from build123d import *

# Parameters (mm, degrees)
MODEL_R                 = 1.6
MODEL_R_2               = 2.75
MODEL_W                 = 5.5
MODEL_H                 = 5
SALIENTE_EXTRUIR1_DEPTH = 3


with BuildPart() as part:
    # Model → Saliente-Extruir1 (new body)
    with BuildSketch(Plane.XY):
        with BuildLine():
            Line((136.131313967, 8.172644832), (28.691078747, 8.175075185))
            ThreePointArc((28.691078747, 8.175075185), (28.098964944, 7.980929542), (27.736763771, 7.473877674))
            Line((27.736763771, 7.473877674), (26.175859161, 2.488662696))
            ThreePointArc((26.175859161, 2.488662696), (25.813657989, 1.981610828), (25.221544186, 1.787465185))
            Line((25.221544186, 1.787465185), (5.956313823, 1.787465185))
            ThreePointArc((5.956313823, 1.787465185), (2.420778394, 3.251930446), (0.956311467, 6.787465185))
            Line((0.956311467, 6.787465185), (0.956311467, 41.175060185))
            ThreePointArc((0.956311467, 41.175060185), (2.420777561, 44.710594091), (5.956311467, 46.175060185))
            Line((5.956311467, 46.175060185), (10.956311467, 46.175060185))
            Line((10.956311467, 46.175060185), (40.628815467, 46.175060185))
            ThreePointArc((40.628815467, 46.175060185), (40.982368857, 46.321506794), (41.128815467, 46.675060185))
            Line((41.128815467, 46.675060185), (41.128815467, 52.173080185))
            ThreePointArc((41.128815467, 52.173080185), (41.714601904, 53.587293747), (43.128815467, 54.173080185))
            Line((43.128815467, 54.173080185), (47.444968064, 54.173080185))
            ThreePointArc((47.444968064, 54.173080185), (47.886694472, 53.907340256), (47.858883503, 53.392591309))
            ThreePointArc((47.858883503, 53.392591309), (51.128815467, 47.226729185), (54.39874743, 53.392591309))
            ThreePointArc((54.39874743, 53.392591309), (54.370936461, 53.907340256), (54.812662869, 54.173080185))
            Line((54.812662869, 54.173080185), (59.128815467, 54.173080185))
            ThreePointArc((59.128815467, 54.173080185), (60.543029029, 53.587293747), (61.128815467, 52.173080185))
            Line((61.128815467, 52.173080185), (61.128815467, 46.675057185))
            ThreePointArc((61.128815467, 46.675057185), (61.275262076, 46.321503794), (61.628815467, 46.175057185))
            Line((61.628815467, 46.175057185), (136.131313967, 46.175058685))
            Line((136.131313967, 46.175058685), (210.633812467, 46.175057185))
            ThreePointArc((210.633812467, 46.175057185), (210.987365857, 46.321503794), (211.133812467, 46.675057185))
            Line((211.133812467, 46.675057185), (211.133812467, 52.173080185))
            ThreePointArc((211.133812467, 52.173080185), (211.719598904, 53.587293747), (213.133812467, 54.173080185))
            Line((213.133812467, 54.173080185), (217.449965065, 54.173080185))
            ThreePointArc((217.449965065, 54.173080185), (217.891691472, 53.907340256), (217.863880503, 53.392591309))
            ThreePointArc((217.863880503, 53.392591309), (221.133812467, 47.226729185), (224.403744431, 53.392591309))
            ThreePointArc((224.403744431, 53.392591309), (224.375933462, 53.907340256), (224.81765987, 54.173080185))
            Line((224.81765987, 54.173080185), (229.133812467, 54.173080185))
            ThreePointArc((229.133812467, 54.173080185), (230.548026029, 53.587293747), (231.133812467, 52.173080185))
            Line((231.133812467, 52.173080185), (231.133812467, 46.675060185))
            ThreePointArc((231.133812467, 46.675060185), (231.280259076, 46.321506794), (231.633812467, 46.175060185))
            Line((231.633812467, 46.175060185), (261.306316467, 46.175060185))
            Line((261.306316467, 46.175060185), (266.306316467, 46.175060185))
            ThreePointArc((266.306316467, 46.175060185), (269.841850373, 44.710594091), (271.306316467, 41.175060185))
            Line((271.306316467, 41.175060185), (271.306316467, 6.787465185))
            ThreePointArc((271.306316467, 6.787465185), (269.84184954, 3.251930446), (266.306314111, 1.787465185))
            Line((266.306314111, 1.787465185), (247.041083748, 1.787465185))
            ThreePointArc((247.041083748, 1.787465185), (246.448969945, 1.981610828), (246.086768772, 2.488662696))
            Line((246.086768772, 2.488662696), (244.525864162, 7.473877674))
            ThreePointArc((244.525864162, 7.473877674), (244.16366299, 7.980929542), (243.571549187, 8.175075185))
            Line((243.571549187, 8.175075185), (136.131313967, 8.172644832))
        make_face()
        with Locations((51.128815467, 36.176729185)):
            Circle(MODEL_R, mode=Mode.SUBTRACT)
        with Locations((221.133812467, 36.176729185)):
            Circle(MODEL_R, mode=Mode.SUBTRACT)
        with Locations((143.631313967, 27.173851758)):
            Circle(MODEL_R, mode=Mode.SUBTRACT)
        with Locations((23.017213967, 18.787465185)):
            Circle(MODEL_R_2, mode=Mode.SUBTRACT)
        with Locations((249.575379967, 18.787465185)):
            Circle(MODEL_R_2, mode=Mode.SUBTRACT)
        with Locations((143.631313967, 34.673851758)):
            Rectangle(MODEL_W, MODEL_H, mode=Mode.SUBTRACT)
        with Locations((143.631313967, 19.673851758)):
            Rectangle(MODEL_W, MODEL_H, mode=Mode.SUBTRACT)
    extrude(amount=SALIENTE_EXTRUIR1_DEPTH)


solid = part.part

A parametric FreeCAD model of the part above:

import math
import FreeCAD as App
import Part
import Sketcher
from FreeCAD import Vector
Q = App.Units.Quantity

doc = App.newDocument("Part")
body = doc.addObject("PartDesign::Body", "Body")

# Sketch on XY plane
sketch1 = body.newObject("Sketcher::SketchObject", "Sketch")
sketch1.AttachmentSupport = (doc.getObject("XY_Plane"), [""])
sketch1.MapMode = "FlatFace"
sketch1.addGeometry(Part.LineSegment(Vector(28.691079, 8.175075, 0), Vector(136.131314, 8.172645, 0)), False)
sketch1.addGeometry(Part.LineSegment(Vector(136.131314, 8.172645, 0), Vector(243.571549, 8.175075, 0)), False)
sketch1.addGeometry(Part.ArcOfCircle(Part.Circle(Vector(243.571549, 7.175075, 0), Vector(0, 0, 1), 1), math.radians(17.385692), math.radians(90)), False)
sketch1.addGeometry(Part.LineSegment(Vector(244.525864, 7.473878, 0), Vector(246.086769, 2.488663, 0)), False)
sketch1.addGeometry(Part.ArcOfCircle(Part.Circle(Vector(247.041084, 2.787465, 0), Vector(0, 0, 1), 1), math.radians(-162.614308), math.radians(-90)), False)
sketch1.addGeometry(Part.LineSegment(Vector(247.041084, 1.787465, 0), Vector(266.306314, 1.787465, 0)), False)
sketch1.addGeometry(Part.ArcOfCircle(Part.Circle(Vector(266.306316, 6.787465, 0), Vector(0, 0, 1), 5), math.radians(-90.000027), math.radians(0)), False)
sketch1.addGeometry(Part.LineSegment(Vector(271.306316, 6.787465, 0), Vector(271.306316, 41.17506, 0)), False)
sketch1.addGeometry(Part.ArcOfCircle(Part.Circle(Vector(266.306316, 41.17506, 0), Vector(0, 0, 1), 5), math.radians(0), math.radians(90)), False)
sketch1.addGeometry(Part.LineSegment(Vector(266.306316, 46.17506, 0), Vector(231.633812, 46.17506, 0)), False)
sketch1.addGeometry(Part.ArcOfCircle(Part.Circle(Vector(231.633812, 46.67506, 0), Vector(0, 0, 1), 0.5), math.radians(180), math.radians(270)), False)
sketch1.addGeometry(Part.LineSegment(Vector(231.133812, 46.67506, 0), Vector(231.133812, 52.17308, 0)), False)
sketch1.addGeometry(Part.ArcOfCircle(Part.Circle(Vector(229.133812, 52.17308, 0), Vector(0, 0, 1), 2), math.radians(0), math.radians(90)), False)
sketch1.addGeometry(Part.LineSegment(Vector(229.133812, 54.17308, 0), Vector(224.81766, 54.17308, 0)), False)
sketch1.addGeometry(Part.ArcOfCircle(Part.Circle(Vector(224.81766, 53.67308, 0), Vector(0, 0, 1), 0.5), math.radians(90), math.radians(214.123443)), False)
sketch1.addGeometry(Part.ArcOfCircle(Part.Circle(Vector(221.133812, 51.176729, 0), Vector(0, 0, 1), 3.95), math.radians(145.876557), math.radians(394.123443)), False)
sketch1.addGeometry(Part.ArcOfCircle(Part.Circle(Vector(217.449965, 53.67308, 0), Vector(0, 0, 1), 0.5), math.radians(-34.123443), math.radians(90)), False)
sketch1.addGeometry(Part.LineSegment(Vector(217.449965, 54.17308, 0), Vector(213.133812, 54.17308, 0)), False)
sketch1.addGeometry(Part.ArcOfCircle(Part.Circle(Vector(213.133812, 52.17308, 0), Vector(0, 0, 1), 2), math.radians(90), math.radians(180)), False)
sketch1.addGeometry(Part.LineSegment(Vector(211.133812, 52.17308, 0), Vector(211.133812, 46.675057, 0)), False)
sketch1.addGeometry(Part.ArcOfCircle(Part.Circle(Vector(210.633812, 46.675057, 0), Vector(0, 0, 1), 0.5), math.radians(-90), math.radians(0)), False)
sketch1.addGeometry(Part.LineSegment(Vector(210.633812, 46.175057, 0), Vector(136.131314, 46.175059, 0)), False)
sketch1.addGeometry(Part.LineSegment(Vector(136.131314, 46.175059, 0), Vector(61.628815, 46.175057, 0)), False)
sketch1.addGeometry(Part.ArcOfCircle(Part.Circle(Vector(61.628815, 46.675057, 0), Vector(0, 0, 1), 0.5), math.radians(180), math.radians(270)), False)
sketch1.addGeometry(Part.LineSegment(Vector(61.128815, 46.675057, 0), Vector(61.128815, 52.17308, 0)), False)
sketch1.addGeometry(Part.ArcOfCircle(Part.Circle(Vector(59.128815, 52.17308, 0), Vector(0, 0, 1), 2), math.radians(0), math.radians(90)), False)
sketch1.addGeometry(Part.LineSegment(Vector(59.128815, 54.17308, 0), Vector(54.812663, 54.17308, 0)), False)
sketch1.addGeometry(Part.ArcOfCircle(Part.Circle(Vector(54.812663, 53.67308, 0), Vector(0, 0, 1), 0.5), math.radians(90), math.radians(214.123443)), False)
sketch1.addGeometry(Part.ArcOfCircle(Part.Circle(Vector(51.128815, 51.176729, 0), Vector(0, 0, 1), 3.95), math.radians(145.876557), math.radians(394.123443)), False)
sketch1.addGeometry(Part.ArcOfCircle(Part.Circle(Vector(47.444968, 53.67308, 0), Vector(0, 0, 1), 0.5), math.radians(-34.123443), math.radians(90)), False)
sketch1.addGeometry(Part.LineSegment(Vector(47.444968, 54.17308, 0), Vector(43.128815, 54.17308, 0)), False)
sketch1.addGeometry(Part.ArcOfCircle(Part.Circle(Vector(43.128815, 52.17308, 0), Vector(0, 0, 1), 2), math.radians(90), math.radians(180)), False)
sketch1.addGeometry(Part.LineSegment(Vector(41.128815, 52.17308, 0), Vector(41.128815, 46.67506, 0)), False)
sketch1.addGeometry(Part.ArcOfCircle(Part.Circle(Vector(40.628815, 46.67506, 0), Vector(0, 0, 1), 0.5), math.radians(-90), math.radians(0)), False)
sketch1.addGeometry(Part.LineSegment(Vector(40.628815, 46.17506, 0), Vector(5.956311, 46.17506, 0)), False)
sketch1.addGeometry(Part.ArcOfCircle(Part.Circle(Vector(5.956311, 41.17506, 0), Vector(0, 0, 1), 5), math.radians(90), math.radians(180)), False)
sketch1.addGeometry(Part.LineSegment(Vector(0.956311, 41.17506, 0), Vector(0.956311, 6.787465, 0)), False)
sketch1.addGeometry(Part.ArcOfCircle(Part.Circle(Vector(5.956311, 6.787465, 0), Vector(0, 0, 1), 5), math.radians(180), math.radians(270.000027)), False)
sketch1.addGeometry(Part.LineSegment(Vector(5.956314, 1.787465, 0), Vector(25.221544, 1.787465, 0)), False)
sketch1.addGeometry(Part.ArcOfCircle(Part.Circle(Vector(25.221544, 2.787465, 0), Vector(0, 0, 1), 1), math.radians(-90), math.radians(-17.385692)), False)
sketch1.addGeometry(Part.LineSegment(Vector(26.175859, 2.488663, 0), Vector(27.736764, 7.473878, 0)), False)
sketch1.addGeometry(Part.ArcOfCircle(Part.Circle(Vector(28.691079, 7.175075, 0), Vector(0, 0, 1), 1), math.radians(90), math.radians(162.614308)), False)
sketch1.addGeometry(Part.Circle(Vector(249.57538, 18.787465, 0), Vector(0, 0, 1), 2.75), False)
sketch1.addGeometry(Part.LineSegment(Vector(140.881314, 17.173852, 0), Vector(140.881314, 22.173852, 0)), False)
sketch1.addGeometry(Part.LineSegment(Vector(140.881314, 22.173852, 0), Vector(146.381314, 22.173852, 0)), False)
sketch1.addGeometry(Part.LineSegment(Vector(146.381314, 22.173852, 0), Vector(146.381314, 17.173852, 0)), False)
sketch1.addGeometry(Part.LineSegment(Vector(146.381314, 17.173852, 0), Vector(140.881314, 17.173852, 0)), False)
sketch1.addGeometry(Part.Circle(Vector(23.017214, 18.787465, 0), Vector(0, 0, 1), 2.75), False)
sketch1.addGeometry(Part.Circle(Vector(143.631314, 27.173852, 0), Vector(0, 0, 1), 1.6), False)
sketch1.addGeometry(Part.Circle(Vector(221.133812, 36.176729, 0), Vector(0, 0, 1), 1.6), False)
sketch1.addGeometry(Part.LineSegment(Vector(140.881314, 32.173852, 0), Vector(140.881314, 37.173852, 0)), False)
sketch1.addGeometry(Part.LineSegment(Vector(140.881314, 37.173852, 0), Vector(146.381314, 37.173852, 0)), False)
sketch1.addGeometry(Part.LineSegment(Vector(146.381314, 37.173852, 0), Vector(146.381314, 32.173852, 0)), False)
sketch1.addGeometry(Part.LineSegment(Vector(146.381314, 32.173852, 0), Vector(140.881314, 32.173852, 0)), False)
sketch1.addGeometry(Part.Circle(Vector(51.128815, 36.176729, 0), Vector(0, 0, 1), 1.6), False)
sketch1.addConstraint(Sketcher.Constraint("Coincident", 0, 2, 1, 1))
sketch1.addConstraint(Sketcher.Constraint("Coincident", 1, 2, 2, 2))
sketch1.addConstraint(Sketcher.Constraint("Coincident", 2, 1, 3, 1))
sketch1.addConstraint(Sketcher.Constraint("Coincident", 3, 2, 4, 1))
sketch1.addConstraint(Sketcher.Constraint("Coincident", 4, 2, 5, 1))
sketch1.addConstraint(Sketcher.Constraint("Coincident", 5, 2, 6, 1))
sketch1.addConstraint(Sketcher.Constraint("Coincident", 6, 2, 7, 1))
sketch1.addConstraint(Sketcher.Constraint("Coincident", 7, 2, 8, 1))
sketch1.addConstraint(Sketcher.Constraint("Coincident", 8, 2, 9, 1))
sketch1.addConstraint(Sketcher.Constraint("Coincident", 9, 2, 10, 2))
sketch1.addConstraint(Sketcher.Constraint("Coincident", 10, 1, 11, 1))
sketch1.addConstraint(Sketcher.Constraint("Coincident", 11, 2, 12, 1))
sketch1.addConstraint(Sketcher.Constraint("Coincident", 12, 2, 13, 1))
sketch1.addConstraint(Sketcher.Constraint("Coincident", 13, 2, 14, 1))
sketch1.addConstraint(Sketcher.Constraint("Coincident", 14, 2, 15, 2))
sketch1.addConstraint(Sketcher.Constraint("Coincident", 15, 1, 16, 1))
sketch1.addConstraint(Sketcher.Constraint("Coincident", 16, 2, 17, 1))
sketch1.addConstraint(Sketcher.Constraint("Coincident", 17, 2, 18, 1))
sketch1.addConstraint(Sketcher.Constraint("Coincident", 18, 2, 19, 1))
sketch1.addConstraint(Sketcher.Constraint("Coincident", 19, 2, 20, 2))
sketch1.addConstraint(Sketcher.Constraint("Coincident", 20, 1, 21, 1))
sketch1.addConstraint(Sketcher.Constraint("Coincident", 21, 2, 22, 1))
sketch1.addConstraint(Sketcher.Constraint("Coincident", 22, 2, 23, 2))
sketch1.addConstraint(Sketcher.Constraint("Coincident", 23, 1, 24, 1))
sketch1.addConstraint(Sketcher.Constraint("Coincident", 24, 2, 25, 1))
sketch1.addConstraint(Sketcher.Constraint("Coincident", 25, 2, 26, 1))
sketch1.addConstraint(Sketcher.Constraint("Coincident", 26, 2, 27, 1))
sketch1.addConstraint(Sketcher.Constraint("Coincident", 27, 2, 28, 2))
sketch1.addConstraint(Sketcher.Constraint("Coincident", 28, 1, 29, 1))
sketch1.addConstraint(Sketcher.Constraint("Coincident", 29, 2, 30, 1))
sketch1.addConstraint(Sketcher.Constraint("Coincident", 30, 2, 31, 1))
sketch1.addConstraint(Sketcher.Constraint("Coincident", 31, 2, 32, 1))
sketch1.addConstraint(Sketcher.Constraint("Coincident", 32, 2, 33, 2))
sketch1.addConstraint(Sketcher.Constraint("Coincident", 33, 1, 34, 1))
sketch1.addConstraint(Sketcher.Constraint("Coincident", 34, 2, 35, 1))
sketch1.addConstraint(Sketcher.Constraint("Coincident", 35, 2, 36, 1))
sketch1.addConstraint(Sketcher.Constraint("Coincident", 36, 2, 37, 1))
sketch1.addConstraint(Sketcher.Constraint("Coincident", 37, 2, 38, 1))
sketch1.addConstraint(Sketcher.Constraint("Coincident", 38, 2, 39, 1))
sketch1.addConstraint(Sketcher.Constraint("Coincident", 39, 2, 40, 1))
sketch1.addConstraint(Sketcher.Constraint("Coincident", 40, 2, 41, 2))
sketch1.addConstraint(Sketcher.Constraint("Coincident", 41, 1, 0, 1))
sketch1.addConstraint(Sketcher.Constraint("Coincident", 43, 2, 44, 1))
sketch1.addConstraint(Sketcher.Constraint("Coincident", 44, 2, 45, 1))
sketch1.addConstraint(Sketcher.Constraint("Coincident", 45, 2, 46, 1))
sketch1.addConstraint(Sketcher.Constraint("Coincident", 46, 2, 43, 1))
sketch1.addConstraint(Sketcher.Constraint("Coincident", 50, 2, 51, 1))
sketch1.addConstraint(Sketcher.Constraint("Coincident", 51, 2, 52, 1))
sketch1.addConstraint(Sketcher.Constraint("Coincident", 52, 2, 53, 1))
sketch1.addConstraint(Sketcher.Constraint("Coincident", 53, 2, 50, 1))
sketch1.addConstraint(Sketcher.Constraint("Horizontal", 5))
sketch1.addConstraint(Sketcher.Constraint("Vertical", 7))
sketch1.addConstraint(Sketcher.Constraint("Horizontal", 9))
sketch1.addConstraint(Sketcher.Constraint("Vertical", 11))
sketch1.addConstraint(Sketcher.Constraint("Horizontal", 13))
sketch1.addConstraint(Sketcher.Constraint("Horizontal", 17))
sketch1.addConstraint(Sketcher.Constraint("Vertical", 19))
sketch1.addConstraint(Sketcher.Constraint("Horizontal", 21))
sketch1.addConstraint(Sketcher.Constraint("Horizontal", 22))
sketch1.addConstraint(Sketcher.Constraint("Vertical", 24))
sketch1.addConstraint(Sketcher.Constraint("Horizontal", 26))
sketch1.addConstraint(Sketcher.Constraint("Horizontal", 30))
sketch1.addConstraint(Sketcher.Constraint("Vertical", 32))
sketch1.addConstraint(Sketcher.Constraint("Horizontal", 34))
sketch1.addConstraint(Sketcher.Constraint("Vertical", 36))
sketch1.addConstraint(Sketcher.Constraint("Horizontal", 38))
sketch1.addConstraint(Sketcher.Constraint("Vertical", 43))
sketch1.addConstraint(Sketcher.Constraint("Horizontal", 44))
sketch1.addConstraint(Sketcher.Constraint("Vertical", 45))
sketch1.addConstraint(Sketcher.Constraint("Horizontal", 46))
sketch1.addConstraint(Sketcher.Constraint("Vertical", 50))
sketch1.addConstraint(Sketcher.Constraint("Horizontal", 51))
sketch1.addConstraint(Sketcher.Constraint("Vertical", 52))
sketch1.addConstraint(Sketcher.Constraint("Horizontal", 53))
sketch1.addConstraint(Sketcher.Constraint("Radius", 2, Q("1 mm")))
sketch1.addConstraint(Sketcher.Constraint("Radius", 4, Q("1 mm")))
sketch1.addConstraint(Sketcher.Constraint("Radius", 6, Q("5 mm")))
sketch1.addConstraint(Sketcher.Constraint("Radius", 8, Q("5 mm")))
sketch1.addConstraint(Sketcher.Constraint("Radius", 12, Q("2 mm")))
sketch1.addConstraint(Sketcher.Constraint("Radius", 18, Q("2 mm")))
sketch1.addConstraint(Sketcher.Constraint("Radius", 25, Q("2 mm")))
sketch1.addConstraint(Sketcher.Constraint("Radius", 31, Q("2 mm")))
sketch1.addConstraint(Sketcher.Constraint("Radius", 35, Q("5 mm")))
sketch1.addConstraint(Sketcher.Constraint("Radius", 37, Q("5 mm")))
sketch1.addConstraint(Sketcher.Constraint("Radius", 39, Q("1 mm")))
sketch1.addConstraint(Sketcher.Constraint("Radius", 41, Q("1 mm")))
sketch1.addConstraint(Sketcher.Constraint("Diameter", 42, Q("5.5 mm")))
sketch1.addConstraint(Sketcher.Constraint("Diameter", 47, Q("5.5 mm")))
sketch1.addConstraint(Sketcher.Constraint("Diameter", 48, Q("3.2 mm")))
sketch1.addConstraint(Sketcher.Constraint("Diameter", 49, Q("3.2 mm")))
sketch1.addConstraint(Sketcher.Constraint("Diameter", 54, Q("3.2 mm")))
sketch1.addConstraint(Sketcher.Constraint("Radius", 10, Q("0.5 mm")))
sketch1.addConstraint(Sketcher.Constraint("Radius", 14, Q("0.5 mm")))
sketch1.addConstraint(Sketcher.Constraint("Radius", 16, Q("0.5 mm")))
sketch1.addConstraint(Sketcher.Constraint("Radius", 20, Q("0.5 mm")))
sketch1.addConstraint(Sketcher.Constraint("Radius", 23, Q("0.5 mm")))
sketch1.addConstraint(Sketcher.Constraint("Radius", 27, Q("0.5 mm")))
sketch1.addConstraint(Sketcher.Constraint("Radius", 29, Q("0.5 mm")))
sketch1.addConstraint(Sketcher.Constraint("Radius", 33, Q("0.5 mm")))
sketch1.addConstraint(Sketcher.Constraint("DistanceY", 43, 1, 43, 2, Q("5 mm")))
sketch1.addConstraint(Sketcher.Constraint("DistanceY", 50, 1, 50, 2, Q("5 mm")))
sketch1.addConstraint(Sketcher.Constraint("Radius", 15, Q("3.95 mm")))
sketch1.addConstraint(Sketcher.Constraint("Radius", 28, Q("3.95 mm")))
sketch1.addConstraint(Sketcher.Constraint("DistanceX", 44, 1, 44, 2, Q("5.5 mm")))
sketch1.addConstraint(Sketcher.Constraint("DistanceX", 51, 1, 51, 2, Q("5.5 mm")))
sketch1.addConstraint(Sketcher.Constraint("DistanceX", 21, 2, 21, 1, Q("74.502499 mm")))
sketch1.addConstraint(Sketcher.Constraint("DistanceX", 22, 2, 22, 1, Q("74.502499 mm")))
sketch1.addConstraint(Sketcher.Constraint("DistanceX", 5, 1, 5, 2, Q("19.26523 mm")))
sketch1.addConstraint(Sketcher.Constraint("DistanceX", 38, 1, 38, 2, Q("19.26523 mm")))
sketch1.addConstraint(Sketcher.Constraint("DistanceY", 11, 1, 11, 2, Q("5.49802 mm")))
sketch1.addConstraint(Sketcher.Constraint("DistanceY", 32, 2, 32, 1, Q("5.49802 mm")))
sketch1.addConstraint(Sketcher.Constraint("DistanceX", 9, 2, 9, 1, Q("34.672504 mm")))
sketch1.addConstraint(Sketcher.Constraint("DistanceX", 13, 2, 13, 1, Q("4.316153 mm")))
sketch1.addConstraint(Sketcher.Constraint("DistanceX", 17, 2, 17, 1, Q("4.316153 mm")))
sketch1.addConstraint(Sketcher.Constraint("DistanceX", 26, 2, 26, 1, Q("4.316153 mm")))
sketch1.addConstraint(Sketcher.Constraint("DistanceX", 30, 2, 30, 1, Q("4.316153 mm")))
sketch1.addConstraint(Sketcher.Constraint("DistanceX", 34, 2, 34, 1, Q("34.672504 mm")))
sketch1.addConstraint(Sketcher.Constraint("DistanceY", 7, 1, 7, 2, Q("34.387595 mm")))
sketch1.addConstraint(Sketcher.Constraint("DistanceY", 19, 2, 19, 1, Q("5.498023 mm")))
sketch1.addConstraint(Sketcher.Constraint("DistanceY", 24, 1, 24, 2, Q("5.498023 mm")))
sketch1.addConstraint(Sketcher.Constraint("DistanceY", 36, 2, 36, 1, Q("34.387595 mm")))
sketch1.addConstraint(Sketcher.Constraint("DistanceX", -1, 1, 2, 3, Q("243.571549 mm")))
sketch1.addConstraint(Sketcher.Constraint("DistanceY", -1, 1, 8, 3, Q("41.17506 mm")))
sketch1.addConstraint(Sketcher.Constraint("DistanceY", -1, 1, 12, 3, Q("52.17308 mm")))
sketch1.addConstraint(Sketcher.Constraint("DistanceX", -1, 1, 14, 3, Q("224.81766 mm")))
sketch1.addConstraint(Sketcher.Constraint("DistanceY", -1, 1, 15, 3, Q("51.176729 mm")))
sketch1.addConstraint(Sketcher.Constraint("DistanceY", -1, 1, 16, 3, Q("53.67308 mm")))
sketch1.addConstraint(Sketcher.Constraint("DistanceY", -1, 1, 25, 3, Q("52.17308 mm")))
sketch1.addConstraint(Sketcher.Constraint("DistanceY", -1, 1, 28, 3, Q("51.176729 mm")))
sketch1.addConstraint(Sketcher.Constraint("DistanceX", -1, 1, 29, 3, Q("47.444968 mm")))
sketch1.addConstraint(Sketcher.Constraint("DistanceY", -1, 1, 29, 3, Q("53.67308 mm")))
sketch1.addConstraint(Sketcher.Constraint("DistanceY", -1, 1, 33, 3, Q("46.67506 mm")))
sketch1.addConstraint(Sketcher.Constraint("DistanceX", -1, 1, 35, 3, Q("5.956311 mm")))
sketch1.addConstraint(Sketcher.Constraint("DistanceX", -1, 1, 41, 3, Q("28.691079 mm")))
sketch1.addConstraint(Sketcher.Constraint("DistanceX", -1, 1, 42, 3, Q("249.57538 mm")))
sketch1.addConstraint(Sketcher.Constraint("DistanceY", -1, 1, 48, 3, Q("27.173852 mm")))
sketch1.addConstraint(Sketcher.Constraint("DistanceY", -1, 1, 49, 3, Q("36.176729 mm")))
sketch1.addConstraint(Sketcher.Constraint("DistanceY", -1, 1, 54, 3, Q("36.176729 mm")))
sketch1.addConstraint(Sketcher.Constraint("DistanceX", -1, 1, 1, 2, Q("243.571549 mm")))
sketch1.addConstraint(Sketcher.Constraint("DistanceX", -1, 1, 3, 2, Q("246.086769 mm")))
sketch1.addConstraint(Sketcher.Constraint("DistanceY", -1, 1, 7, 2, Q("41.17506 mm")))
sketch1.addConstraint(Sketcher.Constraint("DistanceY", -1, 1, 10, 1, Q("46.67506 mm")))
sketch1.addConstraint(Sketcher.Constraint("DistanceX", -1, 1, 13, 2, Q("224.81766 mm")))
sketch1.addConstraint(Sketcher.Constraint("DistanceY", -1, 1, 14, 2, Q("53.392591 mm")))
sketch1.addConstraint(Sketcher.Constraint("DistanceX", -1, 1, 15, 1, Q("217.863881 mm")))
sketch1.addConstraint(Sketcher.Constraint("DistanceY", -1, 1, 18, 2, Q("52.17308 mm")))
sketch1.addConstraint(Sketcher.Constraint("DistanceY", -1, 1, 21, 2, Q("46.175059 mm")))
sketch1.addConstraint(Sketcher.Constraint("DistanceY", -1, 1, 24, 2, Q("52.17308 mm")))
sketch1.addConstraint(Sketcher.Constraint("DistanceY", -1, 1, 27, 2, Q("53.392591 mm")))
sketch1.addConstraint(Sketcher.Constraint("DistanceY", -1, 1, 28, 1, Q("53.392591 mm")))
sketch1.addConstraint(Sketcher.Constraint("DistanceX", -1, 1, 29, 2, Q("47.444968 mm")))
sketch1.addConstraint(Sketcher.Constraint("DistanceY", -1, 1, 31, 2, Q("52.17308 mm")))
sketch1.addConstraint(Sketcher.Constraint("DistanceX", -1, 1, 34, 2, Q("5.956311 mm")))
sketch1.addConstraint(Sketcher.Constraint("DistanceY", -1, 1, 35, 2, Q("41.17506 mm")))
sketch1.addConstraint(Sketcher.Constraint("DistanceX", -1, 1, 39, 2, Q("26.175859 mm")))
sketch1.addConstraint(Sketcher.Constraint("DistanceX", -1, 1, 41, 1, Q("28.691079 mm")))
sketch1.addConstraint(Sketcher.Constraint("DistanceY", -1, 1, 43, 2, Q("22.173852 mm")))
sketch1.addConstraint(Sketcher.Constraint("DistanceY", -1, 1, 50, 2, Q("37.173852 mm")))
sketch1.addConstraint(Sketcher.Constraint("Distance", 0, Q("107.440235 mm")))
sketch1.addConstraint(Sketcher.Constraint("Distance", 3, Q("5.223867 mm")))
sketch1.addConstraint(Sketcher.Constraint("Distance", 40, Q("5.223867 mm")))
sketch1.addConstraint(Sketcher.Constraint("DistanceY", -1, 1, 2, 3, Q("7.175075 mm")))
sketch1.addConstraint(Sketcher.Constraint("DistanceX", -1, 1, 4, 3, Q("247.041084 mm")))
sketch1.addConstraint(Sketcher.Constraint("DistanceY", -1, 1, 4, 3, Q("2.787465 mm")))
sketch1.addConstraint(Sketcher.Constraint("DistanceX", -1, 1, 6, 3, Q("266.306316 mm")))
sketch1.addConstraint(Sketcher.Constraint("DistanceX", -1, 1, 10, 3, Q("231.633812 mm")))
sketch1.addConstraint(Sketcher.Constraint("DistanceX", -1, 1, 18, 3, Q("213.133812 mm")))
sketch1.addConstraint(Sketcher.Constraint("DistanceX", -1, 1, 23, 3, Q("61.628815 mm")))
sketch1.addConstraint(Sketcher.Constraint("DistanceX", -1, 1, 31, 3, Q("43.128815 mm")))
sketch1.addConstraint(Sketcher.Constraint("DistanceY", -1, 1, 37, 3, Q("6.787465 mm")))
sketch1.addConstraint(Sketcher.Constraint("DistanceX", -1, 1, 39, 3, Q("25.221544 mm")))
sketch1.addConstraint(Sketcher.Constraint("DistanceY", -1, 1, 41, 3, Q("7.175075 mm")))
sketch1.addConstraint(Sketcher.Constraint("DistanceY", -1, 1, 42, 3, Q("18.787465 mm")))
sketch1.addConstraint(Sketcher.Constraint("DistanceX", -1, 1, 47, 3, Q("23.017214 mm")))
sketch1.addConstraint(Sketcher.Constraint("DistanceY", -1, 1, 47, 3, Q("18.787465 mm")))
sketch1.addConstraint(Sketcher.Constraint("DistanceX", -1, 1, 48, 3, Q("143.631314 mm")))
sketch1.addConstraint(Sketcher.Constraint("DistanceX", -1, 1, 49, 3, Q("221.133812 mm")))
sketch1.addConstraint(Sketcher.Constraint("DistanceX", -1, 1, 54, 3, Q("51.128815 mm")))
sketch1.addConstraint(Sketcher.Constraint("DistanceY", -1, 1, 0, 2, Q("8.172645 mm")))
sketch1.addConstraint(Sketcher.Constraint("DistanceX", -1, 1, 4, 2, Q("247.041084 mm")))
sketch1.addConstraint(Sketcher.Constraint("DistanceX", -1, 1, 8, 2, Q("266.306316 mm")))
sketch1.addConstraint(Sketcher.Constraint("DistanceX", -1, 1, 16, 2, Q("217.449965 mm")))
sketch1.addConstraint(Sketcher.Constraint("DistanceX", -1, 1, 20, 1, Q("210.633812 mm")))
sketch1.addConstraint(Sketcher.Constraint("DistanceX", -1, 1, 25, 2, Q("59.128815 mm")))
sketch1.addConstraint(Sketcher.Constraint("DistanceX", -1, 1, 37, 2, Q("5.956314 mm")))
sketch1.addConstraint(Sketcher.Constraint("DistanceX", -1, 1, 43, 2, Q("140.881314 mm")))
sketch1.addConstraint(Sketcher.Constraint("DistanceX", -1, 1, 50, 2, Q("140.881314 mm")))
pad1 = body.newObject("PartDesign::Pad", "Pad")
pad1.Profile = sketch1
pad1.Length = 3

doc.recompute()
